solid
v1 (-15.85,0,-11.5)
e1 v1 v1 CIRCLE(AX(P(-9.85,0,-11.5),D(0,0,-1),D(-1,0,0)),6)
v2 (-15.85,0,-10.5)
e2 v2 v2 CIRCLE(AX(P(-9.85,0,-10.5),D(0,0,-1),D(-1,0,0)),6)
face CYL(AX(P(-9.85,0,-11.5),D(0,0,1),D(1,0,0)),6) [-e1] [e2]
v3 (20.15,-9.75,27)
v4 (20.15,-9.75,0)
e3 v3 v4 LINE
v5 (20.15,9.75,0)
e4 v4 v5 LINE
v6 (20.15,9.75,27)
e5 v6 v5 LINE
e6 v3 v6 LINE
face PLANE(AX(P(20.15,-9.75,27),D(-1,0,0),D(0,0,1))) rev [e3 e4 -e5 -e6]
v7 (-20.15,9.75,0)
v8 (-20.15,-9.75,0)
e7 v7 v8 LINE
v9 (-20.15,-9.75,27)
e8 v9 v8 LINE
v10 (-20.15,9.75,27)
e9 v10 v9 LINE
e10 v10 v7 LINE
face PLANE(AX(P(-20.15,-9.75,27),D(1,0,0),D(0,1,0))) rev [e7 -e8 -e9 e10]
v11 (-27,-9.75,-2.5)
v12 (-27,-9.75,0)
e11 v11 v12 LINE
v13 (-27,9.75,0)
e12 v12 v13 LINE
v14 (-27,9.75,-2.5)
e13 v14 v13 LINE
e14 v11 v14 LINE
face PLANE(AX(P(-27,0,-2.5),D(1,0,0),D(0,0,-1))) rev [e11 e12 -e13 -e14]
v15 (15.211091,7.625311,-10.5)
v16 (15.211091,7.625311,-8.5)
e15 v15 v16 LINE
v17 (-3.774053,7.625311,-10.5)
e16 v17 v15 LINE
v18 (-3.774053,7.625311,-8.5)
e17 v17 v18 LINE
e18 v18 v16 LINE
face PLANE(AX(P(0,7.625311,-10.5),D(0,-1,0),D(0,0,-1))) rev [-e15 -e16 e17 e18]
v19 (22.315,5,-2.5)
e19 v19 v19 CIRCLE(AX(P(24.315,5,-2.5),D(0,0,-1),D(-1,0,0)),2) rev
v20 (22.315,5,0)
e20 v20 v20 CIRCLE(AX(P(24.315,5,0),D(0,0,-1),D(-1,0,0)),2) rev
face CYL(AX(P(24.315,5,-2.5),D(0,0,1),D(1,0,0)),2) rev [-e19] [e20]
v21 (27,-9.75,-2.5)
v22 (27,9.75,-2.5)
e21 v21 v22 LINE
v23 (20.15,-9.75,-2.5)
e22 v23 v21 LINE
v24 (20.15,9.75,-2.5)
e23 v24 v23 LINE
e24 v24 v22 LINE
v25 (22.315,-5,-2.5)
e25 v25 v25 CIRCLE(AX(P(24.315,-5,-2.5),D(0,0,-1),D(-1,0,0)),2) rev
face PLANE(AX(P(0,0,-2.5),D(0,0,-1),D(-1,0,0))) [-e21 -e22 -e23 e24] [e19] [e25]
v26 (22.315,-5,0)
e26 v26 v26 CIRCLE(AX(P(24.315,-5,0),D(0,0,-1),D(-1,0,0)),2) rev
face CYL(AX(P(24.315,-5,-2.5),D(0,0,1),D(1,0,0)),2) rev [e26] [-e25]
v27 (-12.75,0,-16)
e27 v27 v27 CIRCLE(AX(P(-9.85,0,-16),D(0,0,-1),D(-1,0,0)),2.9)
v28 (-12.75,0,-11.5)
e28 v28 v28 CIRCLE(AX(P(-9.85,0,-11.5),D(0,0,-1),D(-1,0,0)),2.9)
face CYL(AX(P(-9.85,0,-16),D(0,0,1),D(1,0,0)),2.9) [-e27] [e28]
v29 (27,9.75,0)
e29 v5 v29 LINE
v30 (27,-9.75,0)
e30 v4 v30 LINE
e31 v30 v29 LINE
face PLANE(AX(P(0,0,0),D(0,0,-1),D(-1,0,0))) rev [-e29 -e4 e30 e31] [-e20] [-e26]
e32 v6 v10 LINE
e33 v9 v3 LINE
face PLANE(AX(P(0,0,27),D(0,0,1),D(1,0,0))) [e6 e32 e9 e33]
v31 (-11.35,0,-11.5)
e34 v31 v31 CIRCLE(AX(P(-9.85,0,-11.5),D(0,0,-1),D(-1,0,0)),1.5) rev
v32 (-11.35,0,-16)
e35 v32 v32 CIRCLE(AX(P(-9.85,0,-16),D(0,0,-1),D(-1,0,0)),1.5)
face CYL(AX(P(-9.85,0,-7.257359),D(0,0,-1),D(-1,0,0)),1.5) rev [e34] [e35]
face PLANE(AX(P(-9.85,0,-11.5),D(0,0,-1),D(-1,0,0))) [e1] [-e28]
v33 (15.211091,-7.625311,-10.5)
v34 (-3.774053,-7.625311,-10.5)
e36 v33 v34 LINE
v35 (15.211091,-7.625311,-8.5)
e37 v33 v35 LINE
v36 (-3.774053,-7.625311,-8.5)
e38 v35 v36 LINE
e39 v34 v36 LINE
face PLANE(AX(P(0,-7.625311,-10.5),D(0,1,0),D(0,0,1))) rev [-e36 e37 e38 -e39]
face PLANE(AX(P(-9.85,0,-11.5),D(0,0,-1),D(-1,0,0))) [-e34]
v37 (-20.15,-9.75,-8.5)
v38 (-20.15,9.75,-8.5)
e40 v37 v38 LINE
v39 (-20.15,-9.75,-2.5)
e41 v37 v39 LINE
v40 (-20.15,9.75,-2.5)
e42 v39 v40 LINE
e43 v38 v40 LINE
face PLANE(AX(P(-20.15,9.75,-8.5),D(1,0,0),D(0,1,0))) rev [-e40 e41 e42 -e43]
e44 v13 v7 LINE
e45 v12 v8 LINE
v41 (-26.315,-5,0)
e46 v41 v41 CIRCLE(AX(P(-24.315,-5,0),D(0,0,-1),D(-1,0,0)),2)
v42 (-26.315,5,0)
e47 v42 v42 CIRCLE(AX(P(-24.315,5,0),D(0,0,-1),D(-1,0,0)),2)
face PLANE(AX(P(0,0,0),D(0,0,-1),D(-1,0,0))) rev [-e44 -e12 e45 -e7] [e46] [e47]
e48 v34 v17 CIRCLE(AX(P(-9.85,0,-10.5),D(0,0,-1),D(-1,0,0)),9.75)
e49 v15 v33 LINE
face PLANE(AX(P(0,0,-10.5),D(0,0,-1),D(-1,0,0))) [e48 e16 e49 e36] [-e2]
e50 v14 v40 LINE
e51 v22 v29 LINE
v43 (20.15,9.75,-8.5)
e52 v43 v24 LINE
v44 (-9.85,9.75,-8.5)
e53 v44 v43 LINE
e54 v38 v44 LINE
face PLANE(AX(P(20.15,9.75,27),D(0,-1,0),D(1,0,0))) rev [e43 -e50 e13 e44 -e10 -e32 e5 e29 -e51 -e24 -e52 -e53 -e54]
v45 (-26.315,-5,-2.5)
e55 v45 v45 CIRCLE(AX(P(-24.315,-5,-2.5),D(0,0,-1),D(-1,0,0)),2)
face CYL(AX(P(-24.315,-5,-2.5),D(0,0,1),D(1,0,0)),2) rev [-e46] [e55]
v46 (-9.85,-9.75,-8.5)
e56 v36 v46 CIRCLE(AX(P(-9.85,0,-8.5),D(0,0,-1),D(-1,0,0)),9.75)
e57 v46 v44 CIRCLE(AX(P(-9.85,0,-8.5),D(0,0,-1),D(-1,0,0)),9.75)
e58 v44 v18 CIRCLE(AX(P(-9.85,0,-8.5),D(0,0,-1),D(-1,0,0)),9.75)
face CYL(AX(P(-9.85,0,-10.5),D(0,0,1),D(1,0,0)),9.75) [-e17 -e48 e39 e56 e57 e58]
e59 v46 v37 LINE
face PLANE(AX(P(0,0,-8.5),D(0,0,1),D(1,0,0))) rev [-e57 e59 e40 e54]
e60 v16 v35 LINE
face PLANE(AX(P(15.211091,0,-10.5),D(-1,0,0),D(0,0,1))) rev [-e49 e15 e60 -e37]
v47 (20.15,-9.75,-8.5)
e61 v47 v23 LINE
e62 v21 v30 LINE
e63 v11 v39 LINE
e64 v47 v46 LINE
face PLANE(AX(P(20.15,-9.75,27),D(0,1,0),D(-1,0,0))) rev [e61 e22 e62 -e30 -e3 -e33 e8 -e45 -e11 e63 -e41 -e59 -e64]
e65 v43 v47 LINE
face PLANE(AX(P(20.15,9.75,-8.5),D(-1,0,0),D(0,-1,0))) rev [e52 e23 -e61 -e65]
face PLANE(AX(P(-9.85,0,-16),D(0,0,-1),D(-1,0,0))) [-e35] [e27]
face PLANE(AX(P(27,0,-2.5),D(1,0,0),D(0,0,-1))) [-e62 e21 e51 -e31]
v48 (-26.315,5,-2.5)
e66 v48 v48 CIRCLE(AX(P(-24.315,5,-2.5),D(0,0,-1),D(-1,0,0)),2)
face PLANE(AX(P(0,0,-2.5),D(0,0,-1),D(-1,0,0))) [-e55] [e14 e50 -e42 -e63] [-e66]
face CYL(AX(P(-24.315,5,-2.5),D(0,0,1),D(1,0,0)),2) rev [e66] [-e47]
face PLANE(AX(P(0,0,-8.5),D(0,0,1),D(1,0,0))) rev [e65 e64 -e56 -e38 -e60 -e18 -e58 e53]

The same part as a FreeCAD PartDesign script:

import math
import FreeCAD as App
import Part
import Sketcher
Q = App.Units.Quantity


def add_polygon(sketch, points):
    """Adds a closed chain of lines whose ends are joined by coincident constraints."""
    first, n = sketch.GeometryCount, len(points)
    for a, b in zip(points, points[1:] + points[:1]):
        sketch.addGeometry(Part.LineSegment(App.Vector(*a, 0), App.Vector(*b, 0)), False)
    for i in range(n):
        sketch.addConstraint(Sketcher.Constraint("Coincident", first + i, 2, first + (i + 1) % n, 1))

doc = App.newDocument("Part")
params = doc.addObject("Spreadsheet::Sheet", "Params")
for row, (alias, value) in enumerate([
    ("sketch1_width", "40.3 mm"),
    ("sketch1_height", "19.5 mm"),
    ("pad1_length", "27 mm"),
    ("sketch2_diameter", "4 mm"),
    ("sketch2_width", "54 mm"),
    ("sketch2_height", "19.5 mm"),
    ("pad2_length", "2.5 mm"),
    ("sketch3_width", "40.3 mm"),
    ("sketch3_height", "19.5 mm"),
    ("pad3_length", "6 mm"),
    ("sketch4_radius", "9.75 mm"),
    ("pad4_length", "2 mm"),
    ("sketch5_diameter", "12 mm"),
    ("pad5_length", "1 mm"),
    ("sketch6_diameter", "5.8 mm"),
    ("pad6_length", "4.5 mm"),
    ("sketch7_diameter", "3 mm"),
    ("pocket1_length", "4.5 mm"),
], start=1):
    params.set(f"A{row}", alias)
    params.set(f"B{row}", "=" + value)
    params.setAlias(f"B{row}", alias)

body = doc.addObject("PartDesign::Body", "Body")

# Sketch on XY plane
sketch1 = body.newObject("Sketcher::SketchObject", "Sketch")
sketch1.AttachmentSupport = (doc.getObject("XY_Plane"), [""])
sketch1.MapMode = "FlatFace"
add_polygon(sketch1, [(-20, 10), (-20, -10), (20, -10), (20, 10)])  # lines 0-3
sketch1.addConstraint(Sketcher.Constraint("Vertical", 0))
sketch1.addConstraint(Sketcher.Constraint("Horizontal", 1))
sketch1.addConstraint(Sketcher.Constraint("Vertical", 2))
sketch1.addConstraint(Sketcher.Constraint("Horizontal", 3))
sketch1.addConstraint(Sketcher.Constraint("Symmetric", 0, 2, 2, 2, -1, 1))
sketch1.addConstraint(Sketcher.Constraint("DistanceX", 1, 1, 1, 2, Q("40.3 mm")))
sketch1.addConstraint(Sketcher.Constraint("DistanceY", 0, 2, 0, 1, Q("19.5 mm")))
sketch1.setExpression("Constraints[9]", "Params.sketch1_width")
sketch1.setExpression("Constraints[10]", "Params.sketch1_height")
pad1 = body.newObject("PartDesign::Pad", "Pad")
pad1.Profile = sketch1
pad1.setExpression("Length", "Params.pad1_length")

# Sketch on XY plane
sketch2 = body.newObject("Sketcher::SketchObject", "Sketch001")
sketch2.AttachmentSupport = (doc.getObject("XY_Plane"), [""])
sketch2.MapMode = "FlatFace"
add_polygon(sketch2, [(-27, -9.8), (-27, 9.8), (27, 9.8), (27, -9.8)])  # lines 0-3
sketch2.addGeometry(Part.Circle(App.Vector(-24.3, -5, 0), App.Vector(0, 0, 1), 2), False)  # 4
sketch2.addGeometry(Part.Circle(App.Vector(-24.3, 5, 0), App.Vector(0, 0, 1), 2), False)  # 5
sketch2.addGeometry(Part.Circle(App.Vector(24.3, 5, 0), App.Vector(0, 0, 1), 2), False)  # 6
sketch2.addGeometry(Part.Circle(App.Vector(24.3, -5, 0), App.Vector(0, 0, 1), 2), False)  # 7
sketch2.addConstraint(Sketcher.Constraint("Vertical", 0))
sketch2.addConstraint(Sketcher.Constraint("Horizontal", 1))
sketch2.addConstraint(Sketcher.Constraint("Vertical", 2))
sketch2.addConstraint(Sketcher.Constraint("Horizontal", 3))
sketch2.addConstraint(Sketcher.Constraint("Equal", 4, 5))
sketch2.addConstraint(Sketcher.Constraint("Equal", 5, 6))
sketch2.addConstraint(Sketcher.Constraint("Equal", 6, 7))
sketch2.addConstraint(Sketcher.Constraint("Symmetric", 4, 3, 6, 3, -1, 1))
sketch2.addConstraint(Sketcher.Constraint("Symmetric", 5, 3, 7, 3, -1, 1))
sketch2.addConstraint(Sketcher.Constraint("Symmetric", 0, 2, 2, 2, -1, 1))
sketch2.addConstraint(Sketcher.Constraint("Symmetric", 5, 3, 6, 3, -2))
sketch2.addConstraint(Sketcher.Constraint("Diameter", 4, Q("4 mm")))
sketch2.addConstraint(Sketcher.Constraint("DistanceX", 1, 1, 1, 2, Q("54 mm")))
sketch2.addConstraint(Sketcher.Constraint("DistanceY", 0, 1, 0, 2, Q("19.5 mm")))
sketch2.addConstraint(Sketcher.Constraint("DistanceY", 4, 3, -1, 1, Q("5 mm")))
sketch2.addConstraint(Sketcher.Constraint("DistanceX", 5, 3, 6, 3, Q("48.63 mm")))
sketch2.setExpression("Constraints[15]", "Params.sketch2_diameter")
sketch2.setExpression("Constraints[16]", "Params.sketch2_width")
sketch2.setExpression("Constraints[17]", "Params.sketch2_height")
pad2 = body.newObject("PartDesign::Pad", "Pad001")
pad2.Profile = sketch2
pad2.setExpression("Length", "Params.pad2_length")
pad2.Reversed = True

# Sketch on XY plane
sketch3 = body.newObject("Sketcher::SketchObject", "Sketch002")
sketch3.AttachmentSupport = (doc.getObject("XY_Plane"), [""])
sketch3.MapMode = "FlatFace"
sketch3.AttachmentOffset = App.Placement(App.Vector(0, 0, -2.5), App.Rotation())
add_polygon(sketch3, [(20, 10), (20, -10), (-20, -10), (-20, 10)])  # lines 0-3
sketch3.addConstraint(Sketcher.Constraint("Vertical", 0))
sketch3.addConstraint(Sketcher.Constraint("Horizontal", 1))
sketch3.addConstraint(Sketcher.Constraint("Vertical", 2))
sketch3.addConstraint(Sketcher.Constraint("Horizontal", 3))
sketch3.addConstraint(Sketcher.Constraint("Symmetric", 0, 2, 2, 2, -1, 1))
sketch3.addConstraint(Sketcher.Constraint("DistanceX", 1, 2, 1, 1, Q("40.3 mm")))
sketch3.addConstraint(Sketcher.Constraint("DistanceY", 0, 2, 0, 1, Q("19.5 mm")))
sketch3.setExpression("Constraints[9]", "Params.sketch3_width")
sketch3.setExpression("Constraints[10]", "Params.sketch3_height")
pad3 = body.newObject("PartDesign::Pad", "Pad002")
pad3.Profile = sketch3
pad3.setExpression("Length", "Params.pad3_length")
pad3.Reversed = True

# Sketch on XY plane
sketch4 = body.newObject("Sketcher::SketchObject", "Sketch003")
sketch4.AttachmentSupport = (doc.getObject("XY_Plane"), [""])
sketch4.MapMode = "FlatFace"
sketch4.AttachmentOffset = App.Placement(App.Vector(0, 0, -8.5), App.Rotation())
sketch4.addGeometry(Part.LineSegment(App.Vector(-4, 8, 0), App.Vector(15, 8, 0)), False)
sketch4.addGeometry(Part.LineSegment(App.Vector(15, 8, 0), App.Vector(15, -8, 0)), False)
sketch4.addGeometry(Part.LineSegment(App.Vector(15, -8, 0), App.Vector(-4, -8, 0)), False)
sketch4.addGeometry(Part.ArcOfCircle(Part.Circle(App.Vector(-10, 0, 0), App.Vector(0, 0, 1), 10), math.radians(51), math.radians(309)), False)
sketch4.addConstraint(Sketcher.Constraint("Coincident", 0, 2, 1, 1))
sketch4.addConstraint(Sketcher.Constraint("Coincident", 1, 2, 2, 1))
sketch4.addConstraint(Sketcher.Constraint("Coincident", 2, 2, 3, 2))
sketch4.addConstraint(Sketcher.Constraint("Coincident", 3, 1, 0, 1))
sketch4.addConstraint(Sketcher.Constraint("Horizontal", 0))
sketch4.addConstraint(Sketcher.Constraint("Vertical", 1))
sketch4.addConstraint(Sketcher.Constraint("Horizontal", 2))
sketch4.addConstraint(Sketcher.Constraint("Symmetric", 2, 2, 3, 1, -1))
sketch4.addConstraint(Sketcher.Constraint("Radius", 3, Q("9.75 mm")))
sketch4.addConstraint(Sketcher.Constraint("DistanceX", 3, 3, -1, 1, Q("9.85 mm")))
sketch4.addConstraint(Sketcher.Constraint("DistanceY", 1, 2, 1, 1, Q("15.250622 mm")))
sketch4.addConstraint(Sketcher.Constraint("DistanceX", 0, 1, 0, 2, Q("18.985144 mm")))
sketch4.setExpression("Constraints[8]", "Params.sketch4_radius")
pad4 = body.newObject("PartDesign::Pad", "Pad003")
pad4.Profile = sketch4
pad4.setExpression("Length", "Params.pad4_length")
pad4.Reversed = True

# Sketch on XY plane
sketch5 = body.newObject("Sketcher::SketchObject", "Sketch004")
sketch5.AttachmentSupport = (doc.getObject("XY_Plane"), [""])
sketch5.MapMode = "FlatFace"
sketch5.AttachmentOffset = App.Placement(App.Vector(0, 0, -10.5), App.Rotation())
sketch5.addGeometry(Part.Circle(App.Vector(-10, 0, 0), App.Vector(0, 0, 1), 6), False)
sketch5.addConstraint(Sketcher.Constraint("PointOnObject", 0, 3, -1))
sketch5.addConstraint(Sketcher.Constraint("Diameter", 0, Q("12 mm")))
sketch5.addConstraint(Sketcher.Constraint("DistanceX", 0, 3, -1, 1, Q("9.85 mm")))
sketch5.setExpression("Constraints[1]", "Params.sketch5_diameter")
pad5 = body.newObject("PartDesign::Pad", "Pad004")
pad5.Profile = sketch5
pad5.setExpression("Length", "Params.pad5_length")
pad5.Reversed = True

# Sketch on XY plane
sketch6 = body.newObject("Sketcher::SketchObject", "Sketch005")
sketch6.AttachmentSupport = (doc.getObject("XY_Plane"), [""])
sketch6.MapMode = "FlatFace"
sketch6.AttachmentOffset = App.Placement(App.Vector(0, 0, -11.5), App.Rotation())
sketch6.addGeometry(Part.Circle(App.Vector(-9.8, 0, 0), App.Vector(0, 0, 1), 2.9), False)
sketch6.addConstraint(Sketcher.Constraint("PointOnObject", 0, 3, -1))
sketch6.addConstraint(Sketcher.Constraint("Diameter", 0, Q("5.8 mm")))
sketch6.addConstraint(Sketcher.Constraint("DistanceX", 0, 3, -1, 1, Q("9.85 mm")))
sketch6.setExpression("Constraints[1]", "Params.sketch6_diameter")
pad6 = body.newObject("PartDesign::Pad", "Pad005")
pad6.Profile = sketch6
pad6.setExpression("Length", "Params.pad6_length")
pad6.Reversed = True

# Sketch on XY plane
sketch7 = body.newObject("Sketcher::SketchObject", "Sketch006")
sketch7.AttachmentSupport = (doc.getObject("XY_Plane"), [""])
sketch7.MapMode = "FlatFace"
sketch7.AttachmentOffset = App.Placement(App.Vector(0, 0, -16), App.Rotation())
sketch7.addGeometry(Part.Circle(App.Vector(-9.8, 0, 0), App.Vector(0, 0, 1), 1.5), False)
sketch7.addConstraint(Sketcher.Constraint("PointOnObject", 0, 3, -1))
sketch7.addConstraint(Sketcher.Constraint("Diameter", 0, Q("3 mm")))
sketch7.addConstraint(Sketcher.Constraint("DistanceX", 0, 3, -1, 1, Q("9.85 mm")))
sketch7.setExpression("Constraints[1]", "Params.sketch7_diameter")
pocket1 = body.newObject("PartDesign::Pocket", "Pocket")
pocket1.Profile = sketch7
pocket1.setExpression("Length", "Params.pocket1_length")
pocket1.Reversed = True

doc.recompute()
